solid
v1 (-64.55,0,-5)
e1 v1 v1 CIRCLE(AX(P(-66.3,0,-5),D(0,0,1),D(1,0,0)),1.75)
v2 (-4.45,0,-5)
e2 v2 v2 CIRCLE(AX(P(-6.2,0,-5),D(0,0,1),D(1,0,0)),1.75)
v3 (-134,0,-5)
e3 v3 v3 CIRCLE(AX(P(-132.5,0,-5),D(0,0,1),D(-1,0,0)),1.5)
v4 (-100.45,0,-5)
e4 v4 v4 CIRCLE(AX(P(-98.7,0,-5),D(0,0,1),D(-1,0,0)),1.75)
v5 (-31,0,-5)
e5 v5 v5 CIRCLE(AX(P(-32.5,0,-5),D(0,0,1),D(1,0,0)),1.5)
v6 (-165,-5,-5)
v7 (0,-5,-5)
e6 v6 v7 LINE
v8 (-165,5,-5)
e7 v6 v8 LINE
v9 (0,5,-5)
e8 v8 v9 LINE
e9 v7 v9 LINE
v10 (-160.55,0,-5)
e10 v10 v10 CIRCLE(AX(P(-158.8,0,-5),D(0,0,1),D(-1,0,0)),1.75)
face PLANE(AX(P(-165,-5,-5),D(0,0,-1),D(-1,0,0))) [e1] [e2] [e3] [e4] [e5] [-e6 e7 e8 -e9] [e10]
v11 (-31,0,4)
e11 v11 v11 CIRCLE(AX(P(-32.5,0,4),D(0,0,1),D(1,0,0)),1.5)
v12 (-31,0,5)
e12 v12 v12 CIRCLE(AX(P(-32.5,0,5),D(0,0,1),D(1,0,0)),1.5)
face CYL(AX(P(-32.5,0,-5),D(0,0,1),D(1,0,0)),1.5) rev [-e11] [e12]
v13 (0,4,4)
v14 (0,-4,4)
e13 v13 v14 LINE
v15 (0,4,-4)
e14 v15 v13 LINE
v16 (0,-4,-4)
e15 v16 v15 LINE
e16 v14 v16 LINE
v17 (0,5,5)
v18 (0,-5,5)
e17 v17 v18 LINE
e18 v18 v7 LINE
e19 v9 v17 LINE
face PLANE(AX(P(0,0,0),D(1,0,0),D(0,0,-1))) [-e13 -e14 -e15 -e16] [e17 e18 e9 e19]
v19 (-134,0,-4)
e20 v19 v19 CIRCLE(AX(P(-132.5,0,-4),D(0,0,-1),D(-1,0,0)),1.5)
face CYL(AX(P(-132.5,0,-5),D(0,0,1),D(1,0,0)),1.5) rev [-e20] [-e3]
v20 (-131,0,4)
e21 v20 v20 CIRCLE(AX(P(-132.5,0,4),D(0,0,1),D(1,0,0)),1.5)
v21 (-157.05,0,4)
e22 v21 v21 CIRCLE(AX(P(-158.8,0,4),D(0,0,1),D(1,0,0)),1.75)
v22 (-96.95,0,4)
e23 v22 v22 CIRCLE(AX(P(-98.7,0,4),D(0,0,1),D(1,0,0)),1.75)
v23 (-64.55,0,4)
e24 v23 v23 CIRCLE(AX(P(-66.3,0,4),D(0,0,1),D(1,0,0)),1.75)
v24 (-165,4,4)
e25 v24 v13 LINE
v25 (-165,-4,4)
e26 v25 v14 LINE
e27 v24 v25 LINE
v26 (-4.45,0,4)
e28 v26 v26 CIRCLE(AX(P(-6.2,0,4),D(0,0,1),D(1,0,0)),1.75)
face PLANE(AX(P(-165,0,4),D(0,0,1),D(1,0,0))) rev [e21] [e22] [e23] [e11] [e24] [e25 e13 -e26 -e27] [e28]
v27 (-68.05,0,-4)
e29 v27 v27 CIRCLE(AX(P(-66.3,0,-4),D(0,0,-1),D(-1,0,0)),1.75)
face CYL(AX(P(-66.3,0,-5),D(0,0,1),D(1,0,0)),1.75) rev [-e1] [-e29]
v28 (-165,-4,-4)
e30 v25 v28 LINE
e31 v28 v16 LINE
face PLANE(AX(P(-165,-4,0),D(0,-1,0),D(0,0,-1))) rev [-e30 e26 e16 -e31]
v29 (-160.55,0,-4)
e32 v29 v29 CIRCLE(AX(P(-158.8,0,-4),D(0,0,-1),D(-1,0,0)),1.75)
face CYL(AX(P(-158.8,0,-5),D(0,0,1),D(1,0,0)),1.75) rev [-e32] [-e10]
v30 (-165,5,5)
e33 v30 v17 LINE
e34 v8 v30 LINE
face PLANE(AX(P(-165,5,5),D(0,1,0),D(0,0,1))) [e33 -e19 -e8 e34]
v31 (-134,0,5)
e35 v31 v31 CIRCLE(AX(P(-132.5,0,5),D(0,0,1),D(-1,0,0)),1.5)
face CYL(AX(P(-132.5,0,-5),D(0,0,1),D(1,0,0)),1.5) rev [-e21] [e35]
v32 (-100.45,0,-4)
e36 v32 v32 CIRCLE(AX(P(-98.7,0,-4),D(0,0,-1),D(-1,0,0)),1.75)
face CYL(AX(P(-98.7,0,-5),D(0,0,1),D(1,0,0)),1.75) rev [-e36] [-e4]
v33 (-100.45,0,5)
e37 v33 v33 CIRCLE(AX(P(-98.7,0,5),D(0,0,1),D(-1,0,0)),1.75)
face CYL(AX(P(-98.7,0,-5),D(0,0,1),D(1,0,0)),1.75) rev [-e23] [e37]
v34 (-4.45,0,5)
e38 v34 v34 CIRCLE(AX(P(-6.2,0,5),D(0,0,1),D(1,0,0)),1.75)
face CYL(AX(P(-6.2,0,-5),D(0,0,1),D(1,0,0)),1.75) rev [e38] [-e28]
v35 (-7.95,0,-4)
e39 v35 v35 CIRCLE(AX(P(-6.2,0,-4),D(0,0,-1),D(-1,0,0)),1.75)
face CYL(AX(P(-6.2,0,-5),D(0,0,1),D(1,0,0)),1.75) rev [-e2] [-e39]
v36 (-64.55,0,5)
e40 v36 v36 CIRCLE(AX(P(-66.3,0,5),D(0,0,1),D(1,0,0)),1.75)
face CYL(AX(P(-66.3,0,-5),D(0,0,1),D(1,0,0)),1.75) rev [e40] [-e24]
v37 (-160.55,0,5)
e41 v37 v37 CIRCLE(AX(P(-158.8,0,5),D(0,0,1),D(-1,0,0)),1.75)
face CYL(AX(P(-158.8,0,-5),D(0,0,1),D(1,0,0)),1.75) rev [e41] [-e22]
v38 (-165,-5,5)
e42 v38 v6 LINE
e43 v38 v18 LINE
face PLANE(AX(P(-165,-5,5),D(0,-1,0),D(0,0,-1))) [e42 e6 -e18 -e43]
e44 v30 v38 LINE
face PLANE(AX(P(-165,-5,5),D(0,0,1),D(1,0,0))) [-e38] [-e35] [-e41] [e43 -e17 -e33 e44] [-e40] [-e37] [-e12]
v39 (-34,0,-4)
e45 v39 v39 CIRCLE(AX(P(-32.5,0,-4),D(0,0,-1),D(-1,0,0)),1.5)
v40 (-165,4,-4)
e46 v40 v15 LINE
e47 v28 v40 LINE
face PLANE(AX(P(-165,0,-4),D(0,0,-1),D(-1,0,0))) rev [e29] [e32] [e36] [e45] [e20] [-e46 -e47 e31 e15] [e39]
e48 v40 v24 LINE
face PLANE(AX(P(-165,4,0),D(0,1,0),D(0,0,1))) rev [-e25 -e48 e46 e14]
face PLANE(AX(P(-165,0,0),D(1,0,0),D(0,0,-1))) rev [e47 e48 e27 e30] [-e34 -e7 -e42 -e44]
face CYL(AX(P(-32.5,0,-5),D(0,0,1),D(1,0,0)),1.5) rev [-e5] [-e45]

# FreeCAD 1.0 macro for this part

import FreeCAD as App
import Part
import Sketcher
from FreeCAD import Vector
Q = App.Units.Quantity


def add_polygon(sketch, points):
    """Adds a closed chain of lines whose ends are joined by coincident constraints."""
    first, n = sketch.GeometryCount, len(points)
    for a, b in zip(points, points[1:] + points[:1]):
        sketch.addGeometry(Part.LineSegment(App.Vector(*a, 0), App.Vector(*b, 0)), False)
    for i in range(n):
        sketch.addConstraint(Sketcher.Constraint("Coincident", first + i, 2, first + (i + 1) % n, 1))

doc = App.newDocument("Part")
params = doc.addObject("Spreadsheet::Sheet", "Params")
for row, (alias, value) in enumerate([
    ("sketch1_width", "10 mm"),
    ("sketch1_width2", "8 mm"),
    ("pad1_length", "165 mm"),
    ("sketch2_diameter", "3 mm"),
    ("sketch2_diameter2", "3.5 mm"),
], start=1):
    params.set(f"A{row}", alias)
    params.set(f"B{row}", "=" + value)
    params.setAlias(f"B{row}", alias)

body = doc.addObject("PartDesign::Body", "Body")

# Sketch on YZ plane
sketch1 = body.newObject("Sketcher::SketchObject", "Sketch")
sketch1.AttachmentSupport = (doc.getObject("YZ_Plane"), [""])
sketch1.MapMode = "FlatFace"
add_polygon(sketch1, [(5, 5), (-5, 5), (-5, -5), (5, -5)])  # lines 0-3
add_polygon(sketch1, [(-4, -4), (-4, 4), (4, 4), (4, -4)])  # lines 4-7
sketch1.addConstraint(Sketcher.Constraint("Horizontal", 0))
sketch1.addConstraint(Sketcher.Constraint("Vertical", 1))
sketch1.addConstraint(Sketcher.Constraint("Horizontal", 2))
sketch1.addConstraint(Sketcher.Constraint("Vertical", 3))
sketch1.addConstraint(Sketcher.Constraint("Vertical", 4))
sketch1.addConstraint(Sketcher.Constraint("Horizontal", 5))
sketch1.addConstraint(Sketcher.Constraint("Vertical", 6))
sketch1.addConstraint(Sketcher.Constraint("Horizontal", 7))
sketch1.addConstraint(Sketcher.Constraint("Symmetric", 0, 2, 2, 2, -1, 1))
sketch1.addConstraint(Sketcher.Constraint("Symmetric", 4, 2, 6, 2, -1, 1))
sketch1.addConstraint(Sketcher.Constraint("Equal", 2, 1))
sketch1.addConstraint(Sketcher.Constraint("Equal", 7, 4))
sketch1.addConstraint(Sketcher.Constraint("DistanceX", 0, 2, 0, 1, Q("10 mm")))
sketch1.addConstraint(Sketcher.Constraint("DistanceX", 5, 1, 5, 2, Q("8 mm")))
sketch1.setExpression("Constraints[20]", "Params.sketch1_width")
sketch1.setExpression("Constraints[21]", "Params.sketch1_width2")
pad1 = body.newObject("PartDesign::Pad", "Pad")
pad1.Profile = sketch1
pad1.setExpression("Length", "Params.pad1_length")
pad1.Reversed = True

# Sketch on XY plane
sketch2 = body.newObject("Sketcher::SketchObject", "Sketch001")
sketch2.AttachmentSupport = (doc.getObject("XY_Plane"), [""])
sketch2.MapMode = "FlatFace"
sketch2.AttachmentOffset = App.Placement(Vector(0, 0, 5), App.Rotation())
sketch2.addGeometry(Part.Circle(Vector(-6.2, 0, 0), Vector(0, 0, 1), 1.8), False)
sketch2.addGeometry(Part.Circle(Vector(-158.8, 0, 0), Vector(0, 0, 1), 1.8), False)
sketch2.addGeometry(Part.Circle(Vector(-32.5, 0, 0), Vector(0, 0, 1), 1.5), False)
sketch2.addGeometry(Part.Circle(Vector(-132.5, 0, 0), Vector(0, 0, 1), 1.5), False)
sketch2.addGeometry(Part.Circle(Vector(-66.3, 0, 0), Vector(0, 0, 1), 1.8), False)
sketch2.addGeometry(Part.Circle(Vector(-98.7, 0, 0), Vector(0, 0, 1), 1.8), False)
sketch2.addConstraint(Sketcher.Constraint("Equal", 0, 1))
sketch2.addConstraint(Sketcher.Constraint("Equal", 2, 3))
sketch2.addConstraint(Sketcher.Constraint("Equal", 1, 4))
sketch2.addConstraint(Sketcher.Constraint("Equal", 4, 5))
sketch2.addConstraint(Sketcher.Constraint("PointOnObject", 0, 3, -1))
sketch2.addConstraint(Sketcher.Constraint("PointOnObject", 1, 3, -1))
sketch2.addConstraint(Sketcher.Constraint("PointOnObject", 2, 3, -1))
sketch2.addConstraint(Sketcher.Constraint("PointOnObject", 3, 3, -1))
sketch2.addConstraint(Sketcher.Constraint("PointOnObject", 4, 3, -1))
sketch2.addConstraint(Sketcher.Constraint("PointOnObject", 5, 3, -1))
sketch2.addConstraint(Sketcher.Constraint("Diameter", 2, Q("3 mm")))
sketch2.addConstraint(Sketcher.Constraint("Diameter", 0, Q("3.5 mm")))
sketch2.addConstraint(Sketcher.Constraint("DistanceX", 3, 3, 2, 3, Q("100 mm")))
sketch2.addConstraint(Sketcher.Constraint("DistanceX", 0, 3, -1, 1, Q("6.2 mm")))
sketch2.addConstraint(Sketcher.Constraint("DistanceX", 1, 3, -1, 1, Q("158.8 mm")))
sketch2.addConstraint(Sketcher.Constraint("DistanceX", 2, 3, -1, 1, Q("32.5 mm")))
sketch2.addConstraint(Sketcher.Constraint("DistanceX", 4, 3, -1, 1, Q("66.3 mm")))
sketch2.addConstraint(Sketcher.Constraint("DistanceX", 5, 3, -1, 1, Q("98.7 mm")))
sketch2.setExpression("Constraints[10]", "Params.sketch2_diameter")
sketch2.setExpression("Constraints[11]", "Params.sketch2_diameter2")
pocket1 = body.newObject("PartDesign::Pocket", "Pocket")
pocket1.Profile = sketch2
pocket1.Type = "ThroughAll"

doc.recompute()
